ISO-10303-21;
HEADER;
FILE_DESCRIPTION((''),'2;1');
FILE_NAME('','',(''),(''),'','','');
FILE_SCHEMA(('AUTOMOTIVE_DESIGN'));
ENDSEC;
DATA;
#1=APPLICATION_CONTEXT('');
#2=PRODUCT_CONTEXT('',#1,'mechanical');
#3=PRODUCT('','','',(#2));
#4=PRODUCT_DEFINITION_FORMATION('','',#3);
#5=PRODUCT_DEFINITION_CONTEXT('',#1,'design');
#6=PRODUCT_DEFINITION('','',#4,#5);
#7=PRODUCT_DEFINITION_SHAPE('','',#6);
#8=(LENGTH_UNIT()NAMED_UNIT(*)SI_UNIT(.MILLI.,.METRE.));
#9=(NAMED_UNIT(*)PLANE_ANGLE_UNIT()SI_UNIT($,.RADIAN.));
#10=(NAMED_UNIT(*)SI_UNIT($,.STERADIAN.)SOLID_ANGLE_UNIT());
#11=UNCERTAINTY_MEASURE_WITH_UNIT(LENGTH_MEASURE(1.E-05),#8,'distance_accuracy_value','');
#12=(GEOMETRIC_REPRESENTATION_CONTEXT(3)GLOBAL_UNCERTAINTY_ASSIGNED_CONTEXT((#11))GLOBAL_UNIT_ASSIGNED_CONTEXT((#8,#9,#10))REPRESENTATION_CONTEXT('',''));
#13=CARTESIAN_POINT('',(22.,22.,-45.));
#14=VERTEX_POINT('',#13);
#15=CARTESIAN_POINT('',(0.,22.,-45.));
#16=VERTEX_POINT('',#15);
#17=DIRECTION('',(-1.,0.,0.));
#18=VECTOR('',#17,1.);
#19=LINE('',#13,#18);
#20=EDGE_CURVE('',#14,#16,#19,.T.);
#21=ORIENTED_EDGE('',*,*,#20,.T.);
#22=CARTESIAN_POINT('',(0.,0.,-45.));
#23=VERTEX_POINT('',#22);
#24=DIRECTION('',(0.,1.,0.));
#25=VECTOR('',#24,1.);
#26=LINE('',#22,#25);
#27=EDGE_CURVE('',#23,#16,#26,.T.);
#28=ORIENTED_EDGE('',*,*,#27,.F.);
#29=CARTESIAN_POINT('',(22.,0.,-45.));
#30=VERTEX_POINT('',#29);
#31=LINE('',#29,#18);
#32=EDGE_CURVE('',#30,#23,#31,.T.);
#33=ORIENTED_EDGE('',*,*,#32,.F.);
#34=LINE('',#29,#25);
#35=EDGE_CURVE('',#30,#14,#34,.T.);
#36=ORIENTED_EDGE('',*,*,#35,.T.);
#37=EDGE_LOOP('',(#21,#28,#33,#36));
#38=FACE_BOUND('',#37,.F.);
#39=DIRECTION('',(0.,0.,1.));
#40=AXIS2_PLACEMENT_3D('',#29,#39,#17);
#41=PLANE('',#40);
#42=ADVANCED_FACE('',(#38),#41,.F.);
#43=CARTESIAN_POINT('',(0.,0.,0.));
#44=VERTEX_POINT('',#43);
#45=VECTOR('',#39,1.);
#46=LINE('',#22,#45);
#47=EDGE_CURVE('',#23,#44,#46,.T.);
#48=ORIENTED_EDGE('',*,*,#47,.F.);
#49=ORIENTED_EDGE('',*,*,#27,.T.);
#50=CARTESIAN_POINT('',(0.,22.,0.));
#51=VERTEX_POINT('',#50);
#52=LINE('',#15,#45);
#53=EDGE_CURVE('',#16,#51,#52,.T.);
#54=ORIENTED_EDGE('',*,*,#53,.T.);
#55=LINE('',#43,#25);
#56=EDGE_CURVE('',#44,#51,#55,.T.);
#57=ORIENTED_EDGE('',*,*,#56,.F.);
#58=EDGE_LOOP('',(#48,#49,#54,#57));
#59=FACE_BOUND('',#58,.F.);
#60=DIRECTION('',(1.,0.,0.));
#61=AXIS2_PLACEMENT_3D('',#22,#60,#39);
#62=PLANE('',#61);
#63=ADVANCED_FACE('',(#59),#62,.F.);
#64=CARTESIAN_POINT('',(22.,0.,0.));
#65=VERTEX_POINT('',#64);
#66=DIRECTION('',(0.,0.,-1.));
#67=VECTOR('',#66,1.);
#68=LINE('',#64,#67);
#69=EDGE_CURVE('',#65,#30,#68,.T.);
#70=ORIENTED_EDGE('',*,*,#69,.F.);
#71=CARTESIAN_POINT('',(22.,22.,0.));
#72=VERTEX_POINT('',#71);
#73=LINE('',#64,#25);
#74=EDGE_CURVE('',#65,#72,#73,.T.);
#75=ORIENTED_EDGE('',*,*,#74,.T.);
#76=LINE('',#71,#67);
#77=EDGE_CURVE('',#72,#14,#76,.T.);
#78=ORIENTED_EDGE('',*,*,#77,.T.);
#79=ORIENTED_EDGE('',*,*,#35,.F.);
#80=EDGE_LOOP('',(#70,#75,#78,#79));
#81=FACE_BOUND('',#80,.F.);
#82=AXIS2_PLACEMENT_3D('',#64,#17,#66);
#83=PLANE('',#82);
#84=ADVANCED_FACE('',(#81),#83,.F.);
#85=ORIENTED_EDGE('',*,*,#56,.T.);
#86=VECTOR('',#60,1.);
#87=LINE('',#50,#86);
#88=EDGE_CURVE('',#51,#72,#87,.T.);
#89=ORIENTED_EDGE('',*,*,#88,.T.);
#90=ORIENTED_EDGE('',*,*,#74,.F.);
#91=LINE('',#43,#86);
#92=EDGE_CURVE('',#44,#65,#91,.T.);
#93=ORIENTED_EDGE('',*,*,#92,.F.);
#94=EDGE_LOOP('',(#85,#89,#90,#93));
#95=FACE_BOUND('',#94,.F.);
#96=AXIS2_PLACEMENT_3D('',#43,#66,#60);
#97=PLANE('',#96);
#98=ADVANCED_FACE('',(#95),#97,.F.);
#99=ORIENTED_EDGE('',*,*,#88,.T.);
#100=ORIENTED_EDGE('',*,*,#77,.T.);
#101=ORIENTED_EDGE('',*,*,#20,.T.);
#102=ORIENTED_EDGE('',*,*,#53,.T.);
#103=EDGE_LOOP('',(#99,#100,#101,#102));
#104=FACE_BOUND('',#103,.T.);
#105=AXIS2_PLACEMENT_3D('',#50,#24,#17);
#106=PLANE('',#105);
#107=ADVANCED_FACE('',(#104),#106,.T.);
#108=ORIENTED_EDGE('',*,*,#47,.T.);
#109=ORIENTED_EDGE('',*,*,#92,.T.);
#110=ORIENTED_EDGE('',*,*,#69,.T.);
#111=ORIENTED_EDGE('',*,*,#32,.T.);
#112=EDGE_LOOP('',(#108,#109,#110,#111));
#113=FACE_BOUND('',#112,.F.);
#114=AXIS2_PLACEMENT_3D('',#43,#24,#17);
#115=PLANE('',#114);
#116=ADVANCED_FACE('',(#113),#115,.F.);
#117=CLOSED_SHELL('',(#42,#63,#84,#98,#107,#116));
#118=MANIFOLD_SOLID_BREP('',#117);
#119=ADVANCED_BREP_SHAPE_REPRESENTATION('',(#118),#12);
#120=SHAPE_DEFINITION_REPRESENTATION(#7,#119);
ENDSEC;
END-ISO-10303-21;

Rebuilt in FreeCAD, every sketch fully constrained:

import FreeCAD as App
import Part
import Sketcher

V = App.Vector
Q = App.Units.Quantity

doc = App.newDocument("Part")
body = doc.addObject("PartDesign::Body", "Body")

# Sketch on XZ plane
sketch1 = doc.addObject("Sketcher::SketchObject", "Sketch")
body.addObject(sketch1)
sketch1.AttachmentSupport = (doc.XZ_Plane, [""])
sketch1.MapMode = "FlatFace"
sketch1.addGeometry(Part.LineSegment(V(0, -45, 0), V(0, 0, 0)), False)
sketch1.addGeometry(Part.LineSegment(V(0, 0, 0), V(22, 0, 0)), False)
sketch1.addGeometry(Part.LineSegment(V(22, 0, 0), V(22, -45, 0)), False)
sketch1.addGeometry(Part.LineSegment(V(22, -45, 0), V(0, -45, 0)), False)
sketch1.addConstraint(Sketcher.Constraint("Coincident", 0, 2, 1, 1))
sketch1.addConstraint(Sketcher.Constraint("Coincident", 1, 2, 2, 1))
sketch1.addConstraint(Sketcher.Constraint("Coincident", 2, 2, 3, 1))
sketch1.addConstraint(Sketcher.Constraint("Coincident", 3, 2, 0, 1))
sketch1.addConstraint(Sketcher.Constraint("Vertical", 0))
sketch1.addConstraint(Sketcher.Constraint("Horizontal", 1))
sketch1.addConstraint(Sketcher.Constraint("Vertical", 2))
sketch1.addConstraint(Sketcher.Constraint("Horizontal", 3))
sketch1.addConstraint(Sketcher.Constraint("Coincident", 0, 2, -1, 1))
sketch1.addConstraint(Sketcher.Constraint("DistanceX", 1, 1, 1, 2, Q("22 mm")))
sketch1.addConstraint(Sketcher.Constraint("DistanceY", 0, 1, 0, 2, Q("45 mm")))
pad1 = doc.addObject("PartDesign::Pad", "Pad")
body.addObject(pad1)
pad1.Profile = sketch1
pad1.Length = 22
pad1.Reversed = True

doc.recompute()
